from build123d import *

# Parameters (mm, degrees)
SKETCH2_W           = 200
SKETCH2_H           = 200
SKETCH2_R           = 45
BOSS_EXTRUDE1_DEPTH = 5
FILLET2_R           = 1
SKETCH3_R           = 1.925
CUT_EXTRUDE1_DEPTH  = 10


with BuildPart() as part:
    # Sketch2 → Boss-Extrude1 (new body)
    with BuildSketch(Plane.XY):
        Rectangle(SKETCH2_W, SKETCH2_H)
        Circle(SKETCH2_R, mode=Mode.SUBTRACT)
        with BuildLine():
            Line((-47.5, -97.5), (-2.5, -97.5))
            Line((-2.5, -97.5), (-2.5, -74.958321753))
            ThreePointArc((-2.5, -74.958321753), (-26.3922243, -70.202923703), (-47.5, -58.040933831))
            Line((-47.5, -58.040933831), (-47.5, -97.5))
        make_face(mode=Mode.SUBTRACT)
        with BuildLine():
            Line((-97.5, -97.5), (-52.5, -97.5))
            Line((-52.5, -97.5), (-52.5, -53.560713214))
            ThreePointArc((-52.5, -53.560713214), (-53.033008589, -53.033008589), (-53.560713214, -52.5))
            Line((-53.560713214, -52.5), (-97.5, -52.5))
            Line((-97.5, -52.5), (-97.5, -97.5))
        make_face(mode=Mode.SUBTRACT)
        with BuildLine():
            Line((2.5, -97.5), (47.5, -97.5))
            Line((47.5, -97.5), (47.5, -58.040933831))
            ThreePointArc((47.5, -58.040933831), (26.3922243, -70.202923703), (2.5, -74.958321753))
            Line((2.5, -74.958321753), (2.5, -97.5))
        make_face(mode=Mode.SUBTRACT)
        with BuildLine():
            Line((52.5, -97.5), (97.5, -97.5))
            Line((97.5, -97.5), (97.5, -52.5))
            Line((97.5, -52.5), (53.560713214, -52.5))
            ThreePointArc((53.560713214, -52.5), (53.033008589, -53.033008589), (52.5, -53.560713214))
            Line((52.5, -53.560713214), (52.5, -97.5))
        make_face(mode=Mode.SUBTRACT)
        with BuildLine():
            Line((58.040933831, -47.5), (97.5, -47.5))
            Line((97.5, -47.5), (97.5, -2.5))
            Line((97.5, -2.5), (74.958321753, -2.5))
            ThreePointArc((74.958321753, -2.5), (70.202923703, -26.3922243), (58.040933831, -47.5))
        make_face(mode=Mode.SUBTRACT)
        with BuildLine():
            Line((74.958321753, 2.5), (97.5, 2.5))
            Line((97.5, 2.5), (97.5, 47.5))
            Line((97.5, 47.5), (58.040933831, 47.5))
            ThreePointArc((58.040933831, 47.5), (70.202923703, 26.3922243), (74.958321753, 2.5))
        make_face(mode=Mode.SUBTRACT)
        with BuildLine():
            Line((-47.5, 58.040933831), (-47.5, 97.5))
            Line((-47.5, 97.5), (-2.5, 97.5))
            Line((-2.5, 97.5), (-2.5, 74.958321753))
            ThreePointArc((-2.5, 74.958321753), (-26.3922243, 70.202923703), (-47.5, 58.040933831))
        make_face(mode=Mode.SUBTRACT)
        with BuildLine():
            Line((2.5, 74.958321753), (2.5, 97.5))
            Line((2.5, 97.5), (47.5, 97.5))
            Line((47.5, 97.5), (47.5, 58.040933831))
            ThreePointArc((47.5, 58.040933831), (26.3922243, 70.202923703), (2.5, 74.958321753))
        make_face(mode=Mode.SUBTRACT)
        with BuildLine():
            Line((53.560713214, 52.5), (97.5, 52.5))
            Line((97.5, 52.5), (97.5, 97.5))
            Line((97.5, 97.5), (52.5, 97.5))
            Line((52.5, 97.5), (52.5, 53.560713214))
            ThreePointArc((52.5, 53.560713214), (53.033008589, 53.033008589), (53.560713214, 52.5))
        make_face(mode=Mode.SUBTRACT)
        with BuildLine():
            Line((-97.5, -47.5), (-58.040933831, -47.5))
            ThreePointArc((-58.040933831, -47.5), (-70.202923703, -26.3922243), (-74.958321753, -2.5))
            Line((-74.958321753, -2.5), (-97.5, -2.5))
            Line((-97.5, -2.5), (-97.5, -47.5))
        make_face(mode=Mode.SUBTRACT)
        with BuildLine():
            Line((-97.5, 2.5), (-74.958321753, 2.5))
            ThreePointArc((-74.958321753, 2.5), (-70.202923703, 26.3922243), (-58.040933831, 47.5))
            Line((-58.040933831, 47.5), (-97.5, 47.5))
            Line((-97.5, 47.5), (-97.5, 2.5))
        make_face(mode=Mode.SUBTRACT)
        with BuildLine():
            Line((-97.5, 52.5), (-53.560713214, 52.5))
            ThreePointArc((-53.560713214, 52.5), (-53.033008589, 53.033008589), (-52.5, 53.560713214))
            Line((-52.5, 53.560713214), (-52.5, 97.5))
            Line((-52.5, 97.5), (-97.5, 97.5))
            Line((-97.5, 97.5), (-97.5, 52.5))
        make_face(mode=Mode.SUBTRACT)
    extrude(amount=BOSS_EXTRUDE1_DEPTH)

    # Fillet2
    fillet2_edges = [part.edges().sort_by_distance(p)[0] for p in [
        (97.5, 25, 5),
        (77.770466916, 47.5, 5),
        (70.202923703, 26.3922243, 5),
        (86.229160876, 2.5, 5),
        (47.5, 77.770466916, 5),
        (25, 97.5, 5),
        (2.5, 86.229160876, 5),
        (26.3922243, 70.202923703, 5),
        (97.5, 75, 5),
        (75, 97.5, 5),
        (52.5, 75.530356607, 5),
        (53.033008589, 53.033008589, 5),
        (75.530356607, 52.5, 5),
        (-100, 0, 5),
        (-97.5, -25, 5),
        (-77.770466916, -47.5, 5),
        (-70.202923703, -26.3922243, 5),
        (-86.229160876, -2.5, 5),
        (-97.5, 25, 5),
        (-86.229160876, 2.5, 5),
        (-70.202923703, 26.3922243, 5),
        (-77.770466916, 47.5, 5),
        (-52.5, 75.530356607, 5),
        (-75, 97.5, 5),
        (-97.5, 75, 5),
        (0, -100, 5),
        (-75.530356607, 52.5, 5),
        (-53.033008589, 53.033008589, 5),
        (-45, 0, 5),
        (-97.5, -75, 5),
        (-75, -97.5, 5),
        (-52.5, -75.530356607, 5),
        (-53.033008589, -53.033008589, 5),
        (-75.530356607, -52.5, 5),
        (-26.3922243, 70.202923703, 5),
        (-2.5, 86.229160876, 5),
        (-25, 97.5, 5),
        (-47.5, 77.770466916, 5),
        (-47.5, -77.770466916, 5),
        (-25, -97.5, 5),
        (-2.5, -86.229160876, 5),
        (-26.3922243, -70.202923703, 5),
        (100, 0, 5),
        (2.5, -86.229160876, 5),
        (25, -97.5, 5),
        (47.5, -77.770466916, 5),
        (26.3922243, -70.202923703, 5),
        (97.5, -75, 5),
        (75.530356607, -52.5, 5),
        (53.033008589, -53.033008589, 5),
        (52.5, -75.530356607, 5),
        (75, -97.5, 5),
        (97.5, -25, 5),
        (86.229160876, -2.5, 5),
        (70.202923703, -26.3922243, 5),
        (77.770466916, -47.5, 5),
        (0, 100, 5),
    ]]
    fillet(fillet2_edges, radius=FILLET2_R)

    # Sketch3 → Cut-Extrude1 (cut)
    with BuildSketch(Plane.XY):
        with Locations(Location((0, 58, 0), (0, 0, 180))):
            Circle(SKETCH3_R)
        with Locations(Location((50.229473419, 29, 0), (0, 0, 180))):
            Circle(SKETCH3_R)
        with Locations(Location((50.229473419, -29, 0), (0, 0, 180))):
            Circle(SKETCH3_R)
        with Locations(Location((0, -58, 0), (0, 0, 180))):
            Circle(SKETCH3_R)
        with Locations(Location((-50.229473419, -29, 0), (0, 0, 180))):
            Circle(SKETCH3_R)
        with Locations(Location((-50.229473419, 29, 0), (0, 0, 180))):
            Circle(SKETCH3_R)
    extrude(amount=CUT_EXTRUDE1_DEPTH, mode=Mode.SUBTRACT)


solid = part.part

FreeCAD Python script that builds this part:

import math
import FreeCAD as App
import Part
import Sketcher
from FreeCAD import Vector
Q = App.Units.Quantity


def edges_at(feature, points):
    """Names of the edges that pass closest to the given points."""
    edges = feature.Shape.Edges
    near = lambda p: min(range(len(edges)), key=lambda i: edges[i].distToShape(Part.Vertex(*p))[0])
    return sorted({f"Edge{near(p) + 1}" for p in points})

doc = App.newDocument("Part")
body = doc.addObject("PartDesign::Body", "Body")

# Sketch on XY plane
sketch1 = body.newObject("Sketcher::SketchObject", "Sketch")
sketch1.AttachmentSupport = (doc.getObject("XY_Plane"), [""])
sketch1.MapMode = "FlatFace"
sketch1.addGeometry([
    Part.LineSegment(Vector(-100, 100, 0), Vector(-100, -100, 0)),  # 0
    Part.LineSegment(Vector(-100, -100, 0), Vector(100, -100, 0)),  # 1
    Part.LineSegment(Vector(100, -100, 0), Vector(100, 100, 0)),  # 2
    Part.LineSegment(Vector(100, 100, 0), Vector(-100, 100, 0)),  # 3
    Part.LineSegment(Vector(-52.5, -97.5, 0), Vector(-97.5, -97.5, 0)),  # 4
    Part.LineSegment(Vector(-97.5, -97.5, 0), Vector(-97.5, -52.5, 0)),  # 5
    Part.LineSegment(Vector(-97.5, -52.5, 0), Vector(-53.6, -52.5, 0)),  # 6
    Part.ArcOfCircle(Part.Circle(Vector(0, 0, 0), Vector(0, 0, 1), 75), math.radians(-135.57), math.radians(-134.43)),  # 7
    Part.LineSegment(Vector(-52.5, -53.6, 0), Vector(-52.5, -97.5, 0)),  # 8
    Part.LineSegment(Vector(-2.5, -97.5, 0), Vector(-47.5, -97.5, 0)),  # 9
    Part.LineSegment(Vector(-47.5, -97.5, 0), Vector(-47.5, -58, 0)),  # 10
    Part.ArcOfCircle(Part.Circle(Vector(0, 0, 0), Vector(0, 0, 1), 75), math.radians(-129), math.radians(-92)),  # 11
    Part.LineSegment(Vector(-2.5, -75, 0), Vector(-2.5, -97.5, 0)),  # 12
    Part.LineSegment(Vector(-58, -47.5, 0), Vector(-97.5, -47.5, 0)),  # 13
    Part.LineSegment(Vector(-97.5, -47.5, 0), Vector(-97.5, -2.5, 0)),  # 14
    Part.LineSegment(Vector(-97.5, -2.5, 0), Vector(-75, -2.5, 0)),  # 15
    Part.ArcOfCircle(Part.Circle(Vector(0, 0, 0), Vector(0, 0, 1), 75), math.radians(-178), math.radians(-141)),  # 16
    Part.LineSegment(Vector(47.5, -97.5, 0), Vector(2.5, -97.5, 0)),  # 17
    Part.LineSegment(Vector(2.5, -97.5, 0), Vector(2.5, -75, 0)),  # 18
    Part.ArcOfCircle(Part.Circle(Vector(0, 0, 0), Vector(0, 0, 1), 75), math.radians(-88), math.radians(-51)),  # 19
    Part.LineSegment(Vector(47.5, -58, 0), Vector(47.5, -97.5, 0)),  # 20
    Part.LineSegment(Vector(97.5, -97.5, 0), Vector(52.5, -97.5, 0)),  # 21
    Part.LineSegment(Vector(52.5, -97.5, 0), Vector(52.5, -53.6, 0)),  # 22
    Part.ArcOfCircle(Part.Circle(Vector(0, 0, 0), Vector(0, 0, 1), 75), math.radians(-45.57), math.radians(-44.43)),  # 23
    Part.LineSegment(Vector(53.6, -52.5, 0), Vector(97.5, -52.5, 0)),  # 24
    Part.LineSegment(Vector(97.5, -52.5, 0), Vector(97.5, -97.5, 0)),  # 25
    Part.LineSegment(Vector(97.5, -47.5, 0), Vector(58, -47.5, 0)),  # 26
    Part.ArcOfCircle(Part.Circle(Vector(0, 0, 0), Vector(0, 0, 1), 75), math.radians(-39), math.radians(-2)),  # 27
    Part.LineSegment(Vector(75, -2.5, 0), Vector(97.5, -2.5, 0)),  # 28
    Part.LineSegment(Vector(97.5, -2.5, 0), Vector(97.5, -47.5, 0)),  # 29
    Part.LineSegment(Vector(-75, 2.5, 0), Vector(-97.5, 2.5, 0)),  # 30
    Part.LineSegment(Vector(-97.5, 2.5, 0), Vector(-97.5, 47.5, 0)),  # 31
    Part.LineSegment(Vector(-97.5, 47.5, 0), Vector(-58, 47.5, 0)),  # 32
    Part.ArcOfCircle(Part.Circle(Vector(0, 0, 0), Vector(0, 0, 1), 75), math.radians(141), math.radians(178)),  # 33
    Part.LineSegment(Vector(-53.6, 52.5, 0), Vector(-97.5, 52.5, 0)),  # 34
    Part.LineSegment(Vector(-97.5, 52.5, 0), Vector(-97.5, 97.5, 0)),  # 35
    Part.LineSegment(Vector(-97.5, 97.5, 0), Vector(-52.5, 97.5, 0)),  # 36
    Part.LineSegment(Vector(-52.5, 97.5, 0), Vector(-52.5, 53.6, 0)),  # 37
    Part.ArcOfCircle(Part.Circle(Vector(0, 0, 0), Vector(0, 0, 1), 75), math.radians(134.43), math.radians(135.57)),  # 38
    Part.ArcOfCircle(Part.Circle(Vector(0, 0, 0), Vector(0, 0, 1), 75), math.radians(92), math.radians(129)),  # 39
    Part.LineSegment(Vector(-47.5, 58, 0), Vector(-47.5, 97.5, 0)),  # 40
    Part.LineSegment(Vector(-47.5, 97.5, 0), Vector(-2.5, 97.5, 0)),  # 41
    Part.LineSegment(Vector(-2.5, 97.5, 0), Vector(-2.5, 75, 0)),  # 42
    Part.Circle(Vector(0, 0, 0), Vector(0, 0, 1), 45),  # 43
    Part.LineSegment(Vector(97.5, 2.5, 0), Vector(75, 2.5, 0)),  # 44
    Part.ArcOfCircle(Part.Circle(Vector(0, 0, 0), Vector(0, 0, 1), 75), math.radians(2), math.radians(39)),  # 45
    Part.LineSegment(Vector(58, 47.5, 0), Vector(97.5, 47.5, 0)),  # 46
    Part.LineSegment(Vector(97.5, 47.5, 0), Vector(97.5, 2.5, 0)),  # 47
    Part.ArcOfCircle(Part.Circle(Vector(0, 0, 0), Vector(0, 0, 1), 75), math.radians(51), math.radians(88)),  # 48
    Part.LineSegment(Vector(2.5, 75, 0), Vector(2.5, 97.5, 0)),  # 49
    Part.LineSegment(Vector(2.5, 97.5, 0), Vector(47.5, 97.5, 0)),  # 50
    Part.LineSegment(Vector(47.5, 97.5, 0), Vector(47.5, 58, 0)),  # 51
    Part.LineSegment(Vector(97.5, 52.5, 0), Vector(53.6, 52.5, 0)),  # 52
    Part.ArcOfCircle(Part.Circle(Vector(0, 0, 0), Vector(0, 0, 1), 75), math.radians(44.43), math.radians(45.57)),  # 53
    Part.LineSegment(Vector(52.5, 53.6, 0), Vector(52.5, 97.5, 0)),  # 54
    Part.LineSegment(Vector(52.5, 97.5, 0), Vector(97.5, 97.5, 0)),  # 55
    Part.LineSegment(Vector(97.5, 97.5, 0), Vector(97.5, 52.5, 0)),  # 56
], False)
sketch1.addConstraint([
    Sketcher.Constraint("Coincident", 0, 2, 1, 1),
    Sketcher.Constraint("Coincident", 1, 2, 2, 1),
    Sketcher.Constraint("Coincident", 2, 2, 3, 1),
    Sketcher.Constraint("Coincident", 3, 2, 0, 1),
    Sketcher.Constraint("Coincident", 4, 2, 5, 1),
    Sketcher.Constraint("Coincident", 5, 2, 6, 1),
    Sketcher.Constraint("Coincident", 6, 2, 7, 1),
    Sketcher.Constraint("Coincident", 7, 2, 8, 1),
    Sketcher.Constraint("Coincident", 8, 2, 4, 1),
    Sketcher.Constraint("Coincident", 9, 2, 10, 1),
    Sketcher.Constraint("Coincident", 10, 2, 11, 1),
    Sketcher.Constraint("Coincident", 11, 2, 12, 1),
    Sketcher.Constraint("Coincident", 12, 2, 9, 1),
    Sketcher.Constraint("Coincident", 13, 2, 14, 1),
    Sketcher.Constraint("Coincident", 14, 2, 15, 1),
    Sketcher.Constraint("Coincident", 15, 2, 16, 1),
    Sketcher.Constraint("Coincident", 16, 2, 13, 1),
    Sketcher.Constraint("Coincident", 17, 2, 18, 1),
    Sketcher.Constraint("Coincident", 18, 2, 19, 1),
    Sketcher.Constraint("Coincident", 19, 2, 20, 1),
    Sketcher.Constraint("Coincident", 20, 2, 17, 1),
    Sketcher.Constraint("Coincident", 21, 2, 22, 1),
    Sketcher.Constraint("Coincident", 22, 2, 23, 1),
    Sketcher.Constraint("Coincident", 23, 2, 24, 1),
    Sketcher.Constraint("Coincident", 24, 2, 25, 1),
    Sketcher.Constraint("Coincident", 25, 2, 21, 1),
    Sketcher.Constraint("Coincident", 26, 2, 27, 1),
    Sketcher.Constraint("Coincident", 27, 2, 28, 1),
    Sketcher.Constraint("Coincident", 28, 2, 29, 1),
    Sketcher.Constraint("Coincident", 29, 2, 26, 1),
    Sketcher.Constraint("Coincident", 30, 2, 31, 1),
    Sketcher.Constraint("Coincident", 31, 2, 32, 1),
    Sketcher.Constraint("Coincident", 32, 2, 33, 1),
    Sketcher.Constraint("Coincident", 33, 2, 30, 1),
    Sketcher.Constraint("Coincident", 34, 2, 35, 1),
    Sketcher.Constraint("Coincident", 35, 2, 36, 1),
    Sketcher.Constraint("Coincident", 36, 2, 37, 1),
    Sketcher.Constraint("Coincident", 37, 2, 38, 1),
    Sketcher.Constraint("Coincident", 38, 2, 34, 1),
    Sketcher.Constraint("Coincident", 39, 2, 40, 1),
    Sketcher.Constraint("Coincident", 40, 2, 41, 1),
    Sketcher.Constraint("Coincident", 41, 2, 42, 1),
    Sketcher.Constraint("Coincident", 42, 2, 39, 1),
    Sketcher.Constraint("Coincident", 44, 2, 45, 1),
    Sketcher.Constraint("Coincident", 45, 2, 46, 1),
    Sketcher.Constraint("Coincident", 46, 2, 47, 1),
    Sketcher.Constraint("Coincident", 47, 2, 44, 1),
    Sketcher.Constraint("Coincident", 48, 2, 49, 1),
    Sketcher.Constraint("Coincident", 49, 2, 50, 1),
    Sketcher.Constraint("Coincident", 50, 2, 51, 1),
    Sketcher.Constraint("Coincident", 51, 2, 48, 1),
    Sketcher.Constraint("Coincident", 52, 2, 53, 1),
    Sketcher.Constraint("Coincident", 53, 2, 54, 1),
    Sketcher.Constraint("Coincident", 54, 2, 55, 1),
    Sketcher.Constraint("Coincident", 55, 2, 56, 1),
    Sketcher.Constraint("Coincident", 56, 2, 52, 1),
    Sketcher.Constraint("Vertical", 0),
    Sketcher.Constraint("Horizontal", 1),
    Sketcher.Constraint("Vertical", 2),
    Sketcher.Constraint("Horizontal", 3),
    Sketcher.Constraint("Horizontal", 4),
    Sketcher.Constraint("Vertical", 5),
    Sketcher.Constraint("Horizontal", 6),
    Sketcher.Constraint("Vertical", 8),
    Sketcher.Constraint("Horizontal", 9),
    Sketcher.Constraint("Vertical", 10),
    Sketcher.Constraint("Vertical", 12),
    Sketcher.Constraint("Horizontal", 13),
    Sketcher.Constraint("Vertical", 14),
    Sketcher.Constraint("Horizontal", 15),
    Sketcher.Constraint("Horizontal", 17),
    Sketcher.Constraint("Vertical", 18),
    Sketcher.Constraint("Vertical", 20),
    Sketcher.Constraint("Horizontal", 21),
    Sketcher.Constraint("Vertical", 22),
    Sketcher.Constraint("Horizontal", 24),
    Sketcher.Constraint("Vertical", 25),
    Sketcher.Constraint("Horizontal", 26),
    Sketcher.Constraint("Horizontal", 28),
    Sketcher.Constraint("Vertical", 29),
    Sketcher.Constraint("Horizontal", 30),
    Sketcher.Constraint("Vertical", 31),
    Sketcher.Constraint("Horizontal", 32),
    Sketcher.Constraint("Horizontal", 34),
    Sketcher.Constraint("Vertical", 35),
    Sketcher.Constraint("Horizontal", 36),
    Sketcher.Constraint("Vertical", 37),
    Sketcher.Constraint("Vertical", 40),
    Sketcher.Constraint("Horizontal", 41),
    Sketcher.Constraint("Vertical", 42),
    Sketcher.Constraint("Horizontal", 44),
    Sketcher.Constraint("Horizontal", 46),
    Sketcher.Constraint("Vertical", 47),
    Sketcher.Constraint("Vertical", 49),
    Sketcher.Constraint("Horizontal", 50),
    Sketcher.Constraint("Vertical", 51),
    Sketcher.Constraint("Horizontal", 52),
    Sketcher.Constraint("Vertical", 54),
    Sketcher.Constraint("Horizontal", 55),
    Sketcher.Constraint("Vertical", 56),
    Sketcher.Constraint("Coincident", 7, 3, -1, 1),
    Sketcher.Constraint("Coincident", 11, 3, -1, 1),
    Sketcher.Constraint("Coincident", 16, 3, -1, 1),
    Sketcher.Constraint("Coincident", 19, 3, -1, 1),
    Sketcher.Constraint("Coincident", 23, 3, -1, 1),
    Sketcher.Constraint("Coincident", 27, 3, -1, 1),
    Sketcher.Constraint("Coincident", 33, 3, -1, 1),
    Sketcher.Constraint("Coincident", 38, 3, -1, 1),
    Sketcher.Constraint("Coincident", 39, 3, -1, 1),
    Sketcher.Constraint("Coincident", 43, 3, -1, 1),
    Sketcher.Constraint("Coincident", 45, 3, -1, 1),
    Sketcher.Constraint("Coincident", 48, 3, -1, 1),
    Sketcher.Constraint("Coincident", 53, 3, -1, 1),
    Sketcher.Constraint("Equal", 7, 11),
    Sketcher.Constraint("Equal", 11, 16),
    Sketcher.Constraint("Equal", 16, 19),
    Sketcher.Constraint("Equal", 19, 23),
    Sketcher.Constraint("Equal", 23, 27),
    Sketcher.Constraint("Equal", 27, 33),
    Sketcher.Constraint("Equal", 33, 38),
    Sketcher.Constraint("Equal", 38, 39),
    Sketcher.Constraint("Equal", 39, 45),
    Sketcher.Constraint("Equal", 45, 48),
    Sketcher.Constraint("Equal", 48, 53),
    Sketcher.Constraint("Symmetric", 0, 2, 2, 2, -1, 1),
    Sketcher.Constraint("Symmetric", 28, 2, 30, 2, -1, 1),
    Sketcher.Constraint("Symmetric", 24, 2, 34, 2, -1, 1),
    Sketcher.Constraint("Symmetric", 21, 2, 36, 2, -1, 1),
    Sketcher.Constraint("Symmetric", 20, 2, 40, 2, -1, 1),
    Sketcher.Constraint("Symmetric", 13, 2, 46, 2, -1, 1),
    Sketcher.Constraint("Symmetric", 12, 2, 49, 2, -1, 1),
    Sketcher.Constraint("Symmetric", 8, 2, 54, 2, -1, 1),
    Sketcher.Constraint("Symmetric", 5, 2, 56, 2, -1, 1),
    Sketcher.Constraint("Symmetric", 12, 2, 17, 2, -2),
    Sketcher.Constraint("Symmetric", 8, 2, 21, 2, -2),
    Sketcher.Constraint("Symmetric", 5, 2, 24, 2, -2),
    Sketcher.Constraint("Symmetric", 14, 2, 28, 2, -2),
    Sketcher.Constraint("Horizontal", 8, 2, 9, 2),
    Sketcher.Constraint("Horizontal", 10, 2, 19, 2),
    Sketcher.Constraint("Horizontal", 16, 2, 26, 2),
    Sketcher.Constraint("Horizontal", 33, 2, 44, 2),
    Sketcher.Constraint("Horizontal", 32, 2, 45, 2),
    Sketcher.Constraint("Horizontal", 42, 2, 48, 2),
    Sketcher.Constraint("Horizontal", 39, 2, 51, 2),
    Sketcher.Constraint("Vertical", 5, 2, 13, 2),
    Sketcher.Constraint("Equal", 4, 9),
    Sketcher.Constraint("Equal", 3, 0),
    Sketcher.Constraint("Equal", 55, 5),
    Sketcher.Constraint("Equal", 52, 8),
    Sketcher.Constraint("Equal", 46, 10),
    Sketcher.Constraint("Equal", 44, 12),
    Sketcher.Constraint("Diameter", 43, Q("90 mm")),
    Sketcher.Constraint("Radius", 7, Q("74.999999 mm")),
    Sketcher.Constraint("DistanceX", 1, 1, 1, 2, Q("200 mm")),
    Sketcher.Constraint("DistanceX", 4, 2, 4, 1, Q("45 mm")),
    Sketcher.Constraint("DistanceX", 4, 2, -1, 1, Q("97.5 mm")),
    Sketcher.Constraint("DistanceX", 9, 2, -1, 1, Q("47.5 mm")),
])
pad1 = body.newObject("PartDesign::Pad", "Pad")
pad1.Profile = sketch1
pad1.Length = 5
doc.recompute()

fillet = body.newObject("PartDesign::Fillet", "Fillet")
fillet.Base = (pad1, edges_at(pad1, [
    (97.5, 25, 5),
    (77.77, 47.5, 5),
    (70.203, 26.392, 5),
    (86.229, 2.5, 5),
    (47.5, 77.77, 5),
    (25, 97.5, 5),
    (2.5, 86.229, 5),
    (26.392, 70.203, 5),
    (97.5, 75, 5),
    (75, 97.5, 5),
    (52.5, 75.53, 5),
    (53.033, 53.033, 5),
    (75.53, 52.5, 5),
    (-100, 0, 5),
    (-97.5, -25, 5),
    (-77.77, -47.5, 5),
    (-70.203, -26.392, 5),
    (-86.229, -2.5, 5),
    (-97.5, 25, 5),
    (-86.229, 2.5, 5),
    (-70.203, 26.392, 5),
    (-77.77, 47.5, 5),
    (-52.5, 75.53, 5),
    (-75, 97.5, 5),
    (-97.5, 75, 5),
    (0, -100, 5),
    (-75.53, 52.5, 5),
    (-53.033, 53.033, 5),
    (-45, 0, 5),
    (-97.5, -75, 5),
    (-75, -97.5, 5),
    (-52.5, -75.53, 5),
    (-53.033, -53.033, 5),
    (-75.53, -52.5, 5),
    (-26.392, 70.203, 5),
    (-2.5, 86.229, 5),
    (-25, 97.5, 5),
    (-47.5, 77.77, 5),
    (-47.5, -77.77, 5),
    (-25, -97.5, 5),
    (-2.5, -86.229, 5),
    (-26.392, -70.203, 5),
    (100, 0, 5),
    (2.5, -86.229, 5),
    (25, -97.5, 5),
    (47.5, -77.77, 5),
    (26.392, -70.203, 5),
    (97.5, -75, 5),
    (75.53, -52.5, 5),
    (53.033, -53.033, 5),
    (52.5, -75.53, 5),
    (75, -97.5, 5),
    (97.5, -25, 5),
    (86.229, -2.5, 5),
    (70.203, -26.392, 5),
    (77.77, -47.5, 5),
    (0, 100, 5),
]))
fillet.Radius = 1

# Sketch on XY plane
sketch2 = body.newObject("Sketcher::SketchObject", "Sketch001")
sketch2.AttachmentSupport = (doc.getObject("XY_Plane"), [""])
sketch2.MapMode = "FlatFace"
sketch2.addGeometry([
    Part.Circle(Vector(0, 58, 0), Vector(0, 0, 1), 1.9),  # 0
    Part.Circle(Vector(50.2, 29, 0), Vector(0, 0, 1), 1.9),  # 1
    Part.Circle(Vector(50.2, -29, 0), Vector(0, 0, 1), 1.9),  # 2
    Part.Circle(Vector(0, -58, 0), Vector(0, 0, 1), 1.9),  # 3
    Part.Circle(Vector(-50.2, -29, 0), Vector(0, 0, 1), 1.9),  # 4
    Part.Circle(Vector(-50.2, 29, 0), Vector(0, 0, 1), 1.9),  # 5
], False)
sketch2.addConstraint([
    Sketcher.Constraint("Equal", 0, 1),
    Sketcher.Constraint("Equal", 1, 2),
    Sketcher.Constraint("Equal", 2, 3),
    Sketcher.Constraint("Equal", 3, 4),
    Sketcher.Constraint("Equal", 4, 5),
    Sketcher.Constraint("Symmetric", 0, 3, 3, 3, -1, 1),
    Sketcher.Constraint("Symmetric", 1, 3, 4, 3, -1, 1),
    Sketcher.Constraint("Symmetric", 2, 3, 5, 3, -1, 1),
    Sketcher.Constraint("Symmetric", 2, 3, 4, 3, -2),
    Sketcher.Constraint("PointOnObject", 0, 3, -2),
    Sketcher.Constraint("Diameter", 0, Q("3.85 mm")),
    Sketcher.Constraint("DistanceY", -1, 1, 0, 3, Q("58 mm")),
    Sketcher.Constraint("DistanceY", -1, 1, 1, 3, Q("29 mm")),
    Sketcher.Constraint("DistanceX", -1, 1, 1, 3, Q("50.229473 mm")),
])
pocket1 = body.newObject("PartDesign::Pocket", "Pocket")
pocket1.Profile = sketch2
pocket1.Length = 10
pocket1.Reversed = True

doc.recompute()
